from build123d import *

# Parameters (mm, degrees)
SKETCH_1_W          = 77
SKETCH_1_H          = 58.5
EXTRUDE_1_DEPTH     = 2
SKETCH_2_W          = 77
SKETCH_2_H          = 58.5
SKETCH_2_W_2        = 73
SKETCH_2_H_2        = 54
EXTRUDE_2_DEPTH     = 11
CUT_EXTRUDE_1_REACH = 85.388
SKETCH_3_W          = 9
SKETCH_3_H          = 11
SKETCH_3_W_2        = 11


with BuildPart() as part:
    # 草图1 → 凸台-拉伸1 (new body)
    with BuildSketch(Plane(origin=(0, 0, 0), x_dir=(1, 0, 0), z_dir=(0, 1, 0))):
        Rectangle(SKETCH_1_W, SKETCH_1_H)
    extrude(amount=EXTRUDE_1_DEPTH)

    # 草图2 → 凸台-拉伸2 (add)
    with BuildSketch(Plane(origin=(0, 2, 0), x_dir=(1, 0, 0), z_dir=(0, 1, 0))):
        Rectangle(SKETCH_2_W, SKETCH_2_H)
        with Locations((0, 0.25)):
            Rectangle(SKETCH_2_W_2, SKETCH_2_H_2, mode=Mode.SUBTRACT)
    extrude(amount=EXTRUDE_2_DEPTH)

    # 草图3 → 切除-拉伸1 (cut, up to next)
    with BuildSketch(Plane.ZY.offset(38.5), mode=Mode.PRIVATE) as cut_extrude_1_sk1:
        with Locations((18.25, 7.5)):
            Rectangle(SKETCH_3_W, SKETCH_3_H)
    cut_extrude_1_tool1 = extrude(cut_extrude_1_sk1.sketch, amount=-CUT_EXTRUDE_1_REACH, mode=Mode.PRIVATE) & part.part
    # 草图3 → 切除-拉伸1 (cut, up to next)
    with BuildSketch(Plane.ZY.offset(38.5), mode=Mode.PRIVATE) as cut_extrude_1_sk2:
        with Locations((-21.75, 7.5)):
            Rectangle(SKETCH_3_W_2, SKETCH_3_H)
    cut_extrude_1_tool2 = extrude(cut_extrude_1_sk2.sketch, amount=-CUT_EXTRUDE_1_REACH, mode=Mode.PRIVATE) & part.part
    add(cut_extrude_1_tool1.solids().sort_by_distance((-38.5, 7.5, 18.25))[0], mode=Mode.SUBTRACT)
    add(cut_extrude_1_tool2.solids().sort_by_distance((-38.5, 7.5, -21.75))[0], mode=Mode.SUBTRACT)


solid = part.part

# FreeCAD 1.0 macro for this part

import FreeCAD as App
import Part
import Sketcher
Q = App.Units.Quantity

doc = App.newDocument("Part")
body = doc.addObject("PartDesign::Body", "Body")

sketch1 = body.newObject("Sketcher::SketchObject", "Sketch")
sketch1.AttachmentSupport = (doc.getObject("XZ_Plane"), [""])
sketch1.MapMode = "FlatFace"
sketch1.addGeometry([
    Part.LineSegment(App.Vector(-38.5, -29.25, 0), App.Vector(-38.5, 29.25, 0)),
    Part.LineSegment(App.Vector(-38.5, 29.25, 0), App.Vector(38.5, 29.25, 0)),
    Part.LineSegment(App.Vector(38.5, 29.25, 0), App.Vector(38.5, -29.25, 0)),
    Part.LineSegment(App.Vector(38.5, -29.25, 0), App.Vector(-38.5, -29.25, 0)),
], False)
sketch1.addConstraint([
    Sketcher.Constraint("Coincident", 0, 2, 1, 1),
    Sketcher.Constraint("Coincident", 1, 2, 2, 1),
    Sketcher.Constraint("Coincident", 2, 2, 3, 1),
    Sketcher.Constraint("Coincident", 3, 2, 0, 1),
    Sketcher.Constraint("Vertical", 0),
    Sketcher.Constraint("Horizontal", 1),
    Sketcher.Constraint("Vertical", 2),
    Sketcher.Constraint("Horizontal", 3),
    Sketcher.Constraint("Symmetric", 0, 2, 2, 2, -1, 1),
    Sketcher.Constraint("DistanceX", 1, 1, 1, 2, Q("77 mm")),
    Sketcher.Constraint("DistanceY", 0, 1, 0, 2, Q("58.5 mm")),
])
pad1 = body.newObject("PartDesign::Pad", "Pad")
pad1.Profile = sketch1
pad1.Length = 2
pad1.Reversed = True

sketch2 = body.newObject("Sketcher::SketchObject", "Sketch001")
sketch2.AttachmentSupport = (doc.getObject("XZ_Plane"), [""])
sketch2.MapMode = "FlatFace"
sketch2.AttachmentOffset = App.Placement(App.Vector(0, 0, -2), App.Rotation())
sketch2.addGeometry([
    Part.LineSegment(App.Vector(-38.5, -29.25, 0), App.Vector(-38.5, 29.25, 0)),
    Part.LineSegment(App.Vector(-38.5, 29.25, 0), App.Vector(38.5, 29.25, 0)),
    Part.LineSegment(App.Vector(38.5, 29.25, 0), App.Vector(38.5, -29.25, 0)),
    Part.LineSegment(App.Vector(38.5, -29.25, 0), App.Vector(-38.5, -29.25, 0)),
    Part.LineSegment(App.Vector(36.5, 26.75, 0), App.Vector(-36.5, 26.75, 0)),
    Part.LineSegment(App.Vector(-36.5, 26.75, 0), App.Vector(-36.5, -27.25, 0)),
    Part.LineSegment(App.Vector(-36.5, -27.25, 0), App.Vector(36.5, -27.25, 0)),
    Part.LineSegment(App.Vector(36.5, -27.25, 0), App.Vector(36.5, 26.75, 0)),
], False)
sketch2.addConstraint([
    Sketcher.Constraint("Coincident", 0, 2, 1, 1),
    Sketcher.Constraint("Coincident", 1, 2, 2, 1),
    Sketcher.Constraint("Coincident", 2, 2, 3, 1),
    Sketcher.Constraint("Coincident", 3, 2, 0, 1),
    Sketcher.Constraint("Coincident", 4, 2, 5, 1),
    Sketcher.Constraint("Coincident", 5, 2, 6, 1),
    Sketcher.Constraint("Coincident", 6, 2, 7, 1),
    Sketcher.Constraint("Coincident", 7, 2, 4, 1),
    Sketcher.Constraint("Vertical", 0),
    Sketcher.Constraint("Horizontal", 1),
    Sketcher.Constraint("Vertical", 2),
    Sketcher.Constraint("Horizontal", 3),
    Sketcher.Constraint("Horizontal", 4),
    Sketcher.Constraint("Vertical", 5),
    Sketcher.Constraint("Horizontal", 6),
    Sketcher.Constraint("Vertical", 7),
    Sketcher.Constraint("Symmetric", 0, 2, 2, 2, -1, 1),
    Sketcher.Constraint("DistanceX", 1, 1, 1, 2, Q("77 mm")),
    Sketcher.Constraint("DistanceX", 4, 2, 4, 1, Q("73 mm")),
    Sketcher.Constraint("DistanceY", 5, 2, 5, 1, Q("54 mm")),
    Sketcher.Constraint("DistanceY", 0, 1, 0, 2, Q("58.5 mm")),
    Sketcher.Constraint("DistanceX", 0, 2, 4, 2, Q("2 mm")),
    Sketcher.Constraint("DistanceY", 3, 2, 4, 2, Q("56 mm")),
])
pad2 = body.newObject("PartDesign::Pad", "Pad001")
pad2.Profile = sketch2
pad2.Length = 11
pad2.Reversed = True

sketch3 = body.newObject("Sketcher::SketchObject", "Sketch002")
sketch3.AttachmentSupport = (doc.getObject("YZ_Plane"), [""])
sketch3.MapMode = "FlatFace"
sketch3.AttachmentOffset = App.Placement(App.Vector(0, 0, -38.5), App.Rotation())
sketch3.addGeometry([
    Part.LineSegment(App.Vector(13, 13.75, 0), App.Vector(2, 13.75, 0)),
    Part.LineSegment(App.Vector(2, 13.75, 0), App.Vector(2, 22.75, 0)),
    Part.LineSegment(App.Vector(2, 22.75, 0), App.Vector(13, 22.75, 0)),
    Part.LineSegment(App.Vector(13, 22.75, 0), App.Vector(13, 13.75, 0)),
], False)
sketch3.addConstraint([
    Sketcher.Constraint("Coincident", 0, 2, 1, 1),
    Sketcher.Constraint("Coincident", 1, 2, 2, 1),
    Sketcher.Constraint("Coincident", 2, 2, 3, 1),
    Sketcher.Constraint("Coincident", 3, 2, 0, 1),
    Sketcher.Constraint("Horizontal", 0),
    Sketcher.Constraint("Vertical", 1),
    Sketcher.Constraint("Horizontal", 2),
    Sketcher.Constraint("Vertical", 3),
    Sketcher.Constraint("DistanceX", 0, 2, 0, 1, Q("11 mm")),
    Sketcher.Constraint("DistanceY", 1, 1, 1, 2, Q("9 mm")),
    Sketcher.Constraint("DistanceX", -1, 1, 0, 2, Q("2 mm")),
    Sketcher.Constraint("DistanceY", -1, 1, 0, 2, Q("13.75 mm")),
])
pocket1 = body.newObject("PartDesign::Pocket", "Pocket")
pocket1.Profile = sketch3
pocket1.Type = "UpToFirst"
pocket1.Reversed = True

sketch4 = body.newObject("Sketcher::SketchObject", "Sketch003")
sketch4.AttachmentSupport = (doc.getObject("YZ_Plane"), [""])
sketch4.MapMode = "FlatFace"
sketch4.AttachmentOffset = App.Placement(App.Vector(0, 0, -38.5), App.Rotation())
sketch4.addGeometry([
    Part.LineSegment(App.Vector(13, -27.25, 0), App.Vector(2, -27.25, 0)),
    Part.LineSegment(App.Vector(2, -27.25, 0), App.Vector(2, -16.25, 0)),
    Part.LineSegment(App.Vector(2, -16.25, 0), App.Vector(13, -16.25, 0)),
    Part.LineSegment(App.Vector(13, -16.25, 0), App.Vector(13, -27.25, 0)),
], False)
sketch4.addConstraint([
    Sketcher.Constraint("Coincident", 0, 2, 1, 1),
    Sketcher.Constraint("Coincident", 1, 2, 2, 1),
    Sketcher.Constraint("Coincident", 2, 2, 3, 1),
    Sketcher.Constraint("Coincident", 3, 2, 0, 1),
    Sketcher.Constraint("Horizontal", 0),
    Sketcher.Constraint("Vertical", 1),
    Sketcher.Constraint("Horizontal", 2),
    Sketcher.Constraint("Vertical", 3),
    Sketcher.Constraint("Equal", 2, 1),
    Sketcher.Constraint("DistanceX", 0, 2, 0, 1, Q("11 mm")),
    Sketcher.Constraint("DistanceX", -1, 1, 0, 2, Q("2 mm")),
    Sketcher.Constraint("DistanceY", 0, 2, -1, 1, Q("27.25 mm")),
])
pocket2 = body.newObject("PartDesign::Pocket", "Pocket001")
pocket2.Profile = sketch4
pocket2.Type = "UpToFirst"
pocket2.Reversed = True

doc.recompute()
